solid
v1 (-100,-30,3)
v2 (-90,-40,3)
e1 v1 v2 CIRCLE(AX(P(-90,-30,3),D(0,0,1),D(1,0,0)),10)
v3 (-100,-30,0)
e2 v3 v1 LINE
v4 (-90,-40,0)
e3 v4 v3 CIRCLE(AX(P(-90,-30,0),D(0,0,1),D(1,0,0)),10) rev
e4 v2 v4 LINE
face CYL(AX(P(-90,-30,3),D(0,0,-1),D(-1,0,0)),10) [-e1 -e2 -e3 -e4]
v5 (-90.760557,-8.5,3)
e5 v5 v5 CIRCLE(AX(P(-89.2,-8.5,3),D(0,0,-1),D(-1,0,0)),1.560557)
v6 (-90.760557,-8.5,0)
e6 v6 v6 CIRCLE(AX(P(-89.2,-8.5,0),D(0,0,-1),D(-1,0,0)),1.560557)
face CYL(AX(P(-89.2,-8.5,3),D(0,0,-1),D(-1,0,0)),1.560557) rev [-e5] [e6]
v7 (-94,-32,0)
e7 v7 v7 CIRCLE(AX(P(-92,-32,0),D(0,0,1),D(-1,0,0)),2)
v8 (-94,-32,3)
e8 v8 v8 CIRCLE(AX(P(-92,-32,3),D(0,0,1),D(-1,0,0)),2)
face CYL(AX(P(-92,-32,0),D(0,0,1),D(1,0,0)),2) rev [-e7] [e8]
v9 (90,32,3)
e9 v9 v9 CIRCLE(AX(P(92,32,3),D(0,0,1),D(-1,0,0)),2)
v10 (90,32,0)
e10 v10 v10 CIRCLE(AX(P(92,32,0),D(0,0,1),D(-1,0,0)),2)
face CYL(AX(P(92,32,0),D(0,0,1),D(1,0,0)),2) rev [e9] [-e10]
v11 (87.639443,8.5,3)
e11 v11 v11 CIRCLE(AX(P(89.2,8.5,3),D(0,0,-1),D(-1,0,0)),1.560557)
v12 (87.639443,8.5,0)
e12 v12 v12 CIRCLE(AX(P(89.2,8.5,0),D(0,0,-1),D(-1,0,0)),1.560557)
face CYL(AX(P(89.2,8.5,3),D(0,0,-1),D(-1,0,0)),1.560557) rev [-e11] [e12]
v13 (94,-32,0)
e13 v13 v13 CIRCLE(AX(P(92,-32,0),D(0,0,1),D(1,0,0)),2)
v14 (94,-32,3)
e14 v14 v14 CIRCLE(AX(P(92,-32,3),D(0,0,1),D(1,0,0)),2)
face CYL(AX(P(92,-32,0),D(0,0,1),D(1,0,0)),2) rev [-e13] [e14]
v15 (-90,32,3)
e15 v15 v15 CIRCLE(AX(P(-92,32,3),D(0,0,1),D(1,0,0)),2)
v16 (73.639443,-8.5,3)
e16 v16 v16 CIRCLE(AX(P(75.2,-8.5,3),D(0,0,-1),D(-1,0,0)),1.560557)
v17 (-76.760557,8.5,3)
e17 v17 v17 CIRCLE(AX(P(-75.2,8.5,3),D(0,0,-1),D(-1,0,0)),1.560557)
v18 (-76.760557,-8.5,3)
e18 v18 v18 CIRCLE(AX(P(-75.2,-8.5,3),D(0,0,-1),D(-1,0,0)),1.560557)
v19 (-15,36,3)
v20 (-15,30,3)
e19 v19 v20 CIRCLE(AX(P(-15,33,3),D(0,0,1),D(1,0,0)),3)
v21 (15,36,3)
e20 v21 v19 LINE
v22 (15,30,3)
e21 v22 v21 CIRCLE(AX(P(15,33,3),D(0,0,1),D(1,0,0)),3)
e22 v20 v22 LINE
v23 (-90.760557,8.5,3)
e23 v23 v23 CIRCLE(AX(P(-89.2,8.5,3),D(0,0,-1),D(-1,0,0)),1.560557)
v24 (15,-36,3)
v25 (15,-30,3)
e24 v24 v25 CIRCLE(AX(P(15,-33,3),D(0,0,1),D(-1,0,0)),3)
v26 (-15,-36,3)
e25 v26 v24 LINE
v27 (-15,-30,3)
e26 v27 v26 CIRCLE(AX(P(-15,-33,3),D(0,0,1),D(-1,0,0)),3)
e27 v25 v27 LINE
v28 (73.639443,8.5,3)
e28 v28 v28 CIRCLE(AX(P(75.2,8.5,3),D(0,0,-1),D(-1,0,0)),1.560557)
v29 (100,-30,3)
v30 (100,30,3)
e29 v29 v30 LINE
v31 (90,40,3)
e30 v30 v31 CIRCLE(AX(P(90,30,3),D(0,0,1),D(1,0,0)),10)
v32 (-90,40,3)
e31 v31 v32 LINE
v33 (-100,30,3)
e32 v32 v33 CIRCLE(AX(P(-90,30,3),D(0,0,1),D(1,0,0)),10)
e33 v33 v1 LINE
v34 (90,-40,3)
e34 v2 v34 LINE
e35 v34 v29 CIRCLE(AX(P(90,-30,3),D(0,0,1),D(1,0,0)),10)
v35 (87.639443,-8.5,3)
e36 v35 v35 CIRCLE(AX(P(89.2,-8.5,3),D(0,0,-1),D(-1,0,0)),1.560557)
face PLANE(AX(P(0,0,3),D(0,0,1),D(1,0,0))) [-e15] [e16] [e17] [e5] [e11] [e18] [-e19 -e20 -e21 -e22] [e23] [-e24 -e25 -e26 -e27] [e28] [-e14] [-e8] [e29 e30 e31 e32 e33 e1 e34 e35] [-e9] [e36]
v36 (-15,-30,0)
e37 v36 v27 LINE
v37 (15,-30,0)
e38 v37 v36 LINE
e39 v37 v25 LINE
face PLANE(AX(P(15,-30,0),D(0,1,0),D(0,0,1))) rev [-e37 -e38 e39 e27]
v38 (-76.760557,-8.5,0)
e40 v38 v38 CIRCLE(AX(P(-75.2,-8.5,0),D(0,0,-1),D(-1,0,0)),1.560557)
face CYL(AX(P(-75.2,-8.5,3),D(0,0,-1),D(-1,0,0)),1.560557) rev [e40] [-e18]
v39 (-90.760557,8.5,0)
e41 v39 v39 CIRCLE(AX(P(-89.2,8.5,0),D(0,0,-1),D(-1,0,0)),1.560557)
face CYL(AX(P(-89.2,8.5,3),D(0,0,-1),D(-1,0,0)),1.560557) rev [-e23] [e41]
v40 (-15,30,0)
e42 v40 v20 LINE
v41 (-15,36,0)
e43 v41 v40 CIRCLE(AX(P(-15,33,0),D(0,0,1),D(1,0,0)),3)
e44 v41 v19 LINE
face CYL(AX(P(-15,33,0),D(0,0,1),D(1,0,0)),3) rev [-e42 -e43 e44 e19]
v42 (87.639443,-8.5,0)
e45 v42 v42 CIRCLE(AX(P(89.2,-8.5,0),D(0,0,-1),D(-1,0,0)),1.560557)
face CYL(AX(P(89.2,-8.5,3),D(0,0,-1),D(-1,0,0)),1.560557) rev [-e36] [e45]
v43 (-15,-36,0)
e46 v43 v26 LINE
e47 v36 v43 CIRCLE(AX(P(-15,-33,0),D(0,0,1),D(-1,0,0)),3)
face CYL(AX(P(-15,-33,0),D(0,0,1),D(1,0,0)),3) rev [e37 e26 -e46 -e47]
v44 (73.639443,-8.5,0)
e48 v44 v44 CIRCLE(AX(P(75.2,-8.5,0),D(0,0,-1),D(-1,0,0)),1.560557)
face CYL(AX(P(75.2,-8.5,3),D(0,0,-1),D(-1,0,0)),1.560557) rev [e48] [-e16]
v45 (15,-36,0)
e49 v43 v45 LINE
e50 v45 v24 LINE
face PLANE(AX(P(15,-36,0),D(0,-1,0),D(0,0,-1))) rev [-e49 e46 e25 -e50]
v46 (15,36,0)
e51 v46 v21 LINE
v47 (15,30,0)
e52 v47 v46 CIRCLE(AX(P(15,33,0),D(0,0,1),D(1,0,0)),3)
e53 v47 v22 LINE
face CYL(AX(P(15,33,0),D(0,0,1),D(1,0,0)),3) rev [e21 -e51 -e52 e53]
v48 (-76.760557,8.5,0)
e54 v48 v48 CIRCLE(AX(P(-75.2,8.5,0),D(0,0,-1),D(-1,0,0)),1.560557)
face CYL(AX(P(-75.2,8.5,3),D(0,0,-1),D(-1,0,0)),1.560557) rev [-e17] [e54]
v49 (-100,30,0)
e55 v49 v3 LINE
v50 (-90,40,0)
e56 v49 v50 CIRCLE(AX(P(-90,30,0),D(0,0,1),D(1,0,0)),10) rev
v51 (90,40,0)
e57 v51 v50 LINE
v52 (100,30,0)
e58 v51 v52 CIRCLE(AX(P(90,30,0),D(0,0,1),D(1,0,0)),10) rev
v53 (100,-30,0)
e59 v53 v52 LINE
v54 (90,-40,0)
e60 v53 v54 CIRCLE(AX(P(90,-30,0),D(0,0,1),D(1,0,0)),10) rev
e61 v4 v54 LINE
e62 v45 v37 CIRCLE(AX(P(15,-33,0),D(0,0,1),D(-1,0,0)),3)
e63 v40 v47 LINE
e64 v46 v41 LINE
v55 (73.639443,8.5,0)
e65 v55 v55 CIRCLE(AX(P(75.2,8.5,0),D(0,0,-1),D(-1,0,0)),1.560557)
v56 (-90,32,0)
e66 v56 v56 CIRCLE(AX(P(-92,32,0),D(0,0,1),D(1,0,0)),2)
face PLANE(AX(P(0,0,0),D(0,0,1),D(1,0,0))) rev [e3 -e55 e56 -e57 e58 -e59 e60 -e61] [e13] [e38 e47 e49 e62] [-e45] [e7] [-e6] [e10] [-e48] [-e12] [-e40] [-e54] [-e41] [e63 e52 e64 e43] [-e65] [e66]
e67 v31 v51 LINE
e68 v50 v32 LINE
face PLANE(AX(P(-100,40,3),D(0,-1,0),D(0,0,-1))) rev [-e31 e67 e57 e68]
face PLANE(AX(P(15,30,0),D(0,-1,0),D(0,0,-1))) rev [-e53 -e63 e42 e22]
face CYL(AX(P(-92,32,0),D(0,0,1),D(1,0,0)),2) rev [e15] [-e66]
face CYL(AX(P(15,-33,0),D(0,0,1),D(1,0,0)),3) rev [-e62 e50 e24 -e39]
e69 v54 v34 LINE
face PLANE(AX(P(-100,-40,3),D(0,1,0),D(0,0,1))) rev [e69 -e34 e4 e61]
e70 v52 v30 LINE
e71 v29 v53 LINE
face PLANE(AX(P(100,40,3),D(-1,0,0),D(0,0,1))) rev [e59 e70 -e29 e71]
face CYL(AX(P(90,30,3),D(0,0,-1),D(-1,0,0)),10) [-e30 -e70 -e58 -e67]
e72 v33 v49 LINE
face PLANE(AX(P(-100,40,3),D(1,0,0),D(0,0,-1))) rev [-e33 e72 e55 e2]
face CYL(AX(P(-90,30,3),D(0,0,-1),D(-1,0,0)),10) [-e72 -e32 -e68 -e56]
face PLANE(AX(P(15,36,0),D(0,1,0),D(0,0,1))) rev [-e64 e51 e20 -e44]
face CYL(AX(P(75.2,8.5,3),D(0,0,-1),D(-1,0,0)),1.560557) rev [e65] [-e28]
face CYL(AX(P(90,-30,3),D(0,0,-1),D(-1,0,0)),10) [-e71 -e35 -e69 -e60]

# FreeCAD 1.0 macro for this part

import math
import FreeCAD as App
import Part
import Sketcher
Q = App.Units.Quantity


def edges_at(feature, points):
    """Names of the edges that pass closest to the given points."""
    edges = feature.Shape.Edges
    near = lambda p: min(range(len(edges)), key=lambda i: edges[i].distToShape(Part.Vertex(*p))[0])
    return sorted({f"Edge{near(p) + 1}" for p in points})

doc = App.newDocument("Part")
body = doc.addObject("PartDesign::Body", "Body")

# Sketch on XY plane
sketch1 = body.newObject("Sketcher::SketchObject", "Sketch")
sketch1.AttachmentSupport = (doc.getObject("XY_Plane"), [""])
sketch1.MapMode = "FlatFace"
sketch1.addGeometry(Part.LineSegment(App.Vector(-100, 40, 0), App.Vector(-100, -40, 0)), False)
sketch1.addGeometry(Part.LineSegment(App.Vector(-100, -40, 0), App.Vector(100, -40, 0)), False)
sketch1.addGeometry(Part.LineSegment(App.Vector(100, -40, 0), App.Vector(100, 40, 0)), False)
sketch1.addGeometry(Part.LineSegment(App.Vector(100, 40, 0), App.Vector(-100, 40, 0)), False)
sketch1.addConstraint(Sketcher.Constraint("Coincident", 0, 2, 1, 1))
sketch1.addConstraint(Sketcher.Constraint("Coincident", 1, 2, 2, 1))
sketch1.addConstraint(Sketcher.Constraint("Coincident", 2, 2, 3, 1))
sketch1.addConstraint(Sketcher.Constraint("Coincident", 3, 2, 0, 1))
sketch1.addConstraint(Sketcher.Constraint("Vertical", 0))
sketch1.addConstraint(Sketcher.Constraint("Horizontal", 1))
sketch1.addConstraint(Sketcher.Constraint("Vertical", 2))
sketch1.addConstraint(Sketcher.Constraint("Horizontal", 3))
sketch1.addConstraint(Sketcher.Constraint("Symmetric", 0, 2, 2, 2, -1, 1))
sketch1.addConstraint(Sketcher.Constraint("DistanceX", 1, 1, 1, 2, Q("200 mm")))
sketch1.addConstraint(Sketcher.Constraint("DistanceY", 0, 2, 0, 1, Q("80 mm")))
pad1 = body.newObject("PartDesign::Pad", "Pad")
pad1.Profile = sketch1
pad1.Length = 3

# Sketch on XY plane
sketch2 = body.newObject("Sketcher::SketchObject", "Sketch001")
sketch2.AttachmentSupport = (doc.getObject("XY_Plane"), [""])
sketch2.MapMode = "FlatFace"
sketch2.AttachmentOffset = App.Placement(App.Vector(0, 0, 3), App.Rotation())
sketch2.addGeometry(Part.Circle(App.Vector(-92, 32, 0), App.Vector(0, 0, 1), 2), False)
sketch2.addGeometry(Part.Circle(App.Vector(-92, -32, 0), App.Vector(0, 0, 1), 2), False)
sketch2.addGeometry(Part.Circle(App.Vector(92, -32, 0), App.Vector(0, 0, 1), 2), False)
sketch2.addGeometry(Part.Circle(App.Vector(92, 32, 0), App.Vector(0, 0, 1), 2), False)
sketch2.addConstraint(Sketcher.Constraint("Equal", 0, 1))
sketch2.addConstraint(Sketcher.Constraint("Equal", 1, 2))
sketch2.addConstraint(Sketcher.Constraint("Equal", 2, 3))
sketch2.addConstraint(Sketcher.Constraint("Symmetric", 0, 3, 2, 3, -1, 1))
sketch2.addConstraint(Sketcher.Constraint("Symmetric", 1, 3, 3, 3, -1, 1))
sketch2.addConstraint(Sketcher.Constraint("Symmetric", 1, 3, 2, 3, -2))
sketch2.addConstraint(Sketcher.Constraint("Diameter", 0, Q("4 mm")))
sketch2.addConstraint(Sketcher.Constraint("DistanceX", 0, 3, -1, 1, Q("92 mm")))
sketch2.addConstraint(Sketcher.Constraint("DistanceY", -1, 1, 0, 3, Q("32 mm")))
pocket1 = body.newObject("PartDesign::Pocket", "Pocket")
pocket1.Profile = sketch2
pocket1.Type = "ThroughAll"
doc.recompute()

fillet = body.newObject("PartDesign::Fillet", "Fillet")
fillet.Base = (pocket1, edges_at(pocket1, [
    (100, -40, 1.5),
    (-100, -40, 1.5),
    (-100, 40, 1.5),
    (100, 40, 1.5),
]))
fillet.Radius = 10

# Sketch on XY plane
sketch3 = body.newObject("Sketcher::SketchObject", "Sketch002")
sketch3.AttachmentSupport = (doc.getObject("XY_Plane"), [""])
sketch3.MapMode = "FlatFace"
sketch3.addGeometry(Part.Circle(App.Vector(-89.2, -8.5, 0), App.Vector(0, 0, 1), 1.6), False)
sketch3.addGeometry(Part.Circle(App.Vector(-75.2, -8.5, 0), App.Vector(0, 0, 1), 1.6), False)
sketch3.addGeometry(Part.Circle(App.Vector(-75.2, 8.5, 0), App.Vector(0, 0, 1), 1.6), False)
sketch3.addGeometry(Part.Circle(App.Vector(-89.2, 8.5, 0), App.Vector(0, 0, 1), 1.6), False)
sketch3.addGeometry(Part.Circle(App.Vector(89.2, -8.5, 0), App.Vector(0, 0, 1), 1.6), False)
sketch3.addGeometry(Part.Circle(App.Vector(75.2, -8.5, 0), App.Vector(0, 0, 1), 1.6), False)
sketch3.addGeometry(Part.Circle(App.Vector(89.2, 8.5, 0), App.Vector(0, 0, 1), 1.6), False)
sketch3.addGeometry(Part.Circle(App.Vector(75.2, 8.5, 0), App.Vector(0, 0, 1), 1.6), False)
sketch3.addConstraint(Sketcher.Constraint("Equal", 0, 1))
sketch3.addConstraint(Sketcher.Constraint("Equal", 1, 2))
sketch3.addConstraint(Sketcher.Constraint("Equal", 2, 3))
sketch3.addConstraint(Sketcher.Constraint("Equal", 3, 4))
sketch3.addConstraint(Sketcher.Constraint("Equal", 4, 5))
sketch3.addConstraint(Sketcher.Constraint("Equal", 5, 6))
sketch3.addConstraint(Sketcher.Constraint("Equal", 6, 7))
sketch3.addConstraint(Sketcher.Constraint("Symmetric", 3, 3, 4, 3, -1, 1))
sketch3.addConstraint(Sketcher.Constraint("Symmetric", 2, 3, 5, 3, -1, 1))
sketch3.addConstraint(Sketcher.Constraint("Symmetric", 0, 3, 6, 3, -1, 1))
sketch3.addConstraint(Sketcher.Constraint("Symmetric", 1, 3, 7, 3, -1, 1))
sketch3.addConstraint(Sketcher.Constraint("Symmetric", 0, 3, 4, 3, -2))
sketch3.addConstraint(Sketcher.Constraint("Symmetric", 1, 3, 5, 3, -2))
sketch3.addConstraint(Sketcher.Constraint("Horizontal", 0, 3, 1, 3))
sketch3.addConstraint(Sketcher.Constraint("DistanceX", 0, 3, 1, 3, Q("14 mm")))
sketch3.addConstraint(Sketcher.Constraint("DistanceY", 1, 3, 2, 3, Q("17 mm")))
sketch3.addConstraint(Sketcher.Constraint("DistanceX", 0, 3, -1, 1, Q("89.2 mm")))
sketch3.addConstraint(Sketcher.Constraint("Diameter", 0, Q("3.121114 mm")))
pocket2 = body.newObject("PartDesign::Pocket", "Pocket001")
pocket2.Profile = sketch3
pocket2.Type = "ThroughAll"
pocket2.Reversed = True

# Sketch on XY plane
sketch4 = body.newObject("Sketcher::SketchObject", "Sketch003")
sketch4.AttachmentSupport = (doc.getObject("XY_Plane"), [""])
sketch4.MapMode = "FlatFace"
sketch4.AttachmentOffset = App.Placement(App.Vector(0, 0, 3), App.Rotation())
sketch4.addGeometry(Part.LineSegment(App.Vector(-15, 30, 0), App.Vector(15, 30, 0)), False)
sketch4.addGeometry(Part.ArcOfCircle(Part.Circle(App.Vector(15, 33, 0), App.Vector(0, 0, 1), 3), math.radians(-90), math.radians(90)), False)
sketch4.addGeometry(Part.LineSegment(App.Vector(15, 36, 0), App.Vector(-15, 36, 0)), False)
sketch4.addGeometry(Part.ArcOfCircle(Part.Circle(App.Vector(-15, 33, 0), App.Vector(0, 0, 1), 3), math.radians(90), math.radians(270)), False)
sketch4.addGeometry(Part.LineSegment(App.Vector(15, -30, 0), App.Vector(-15, -30, 0)), False)
sketch4.addGeometry(Part.ArcOfCircle(Part.Circle(App.Vector(-15, -33, 0), App.Vector(0, 0, 1), 3), math.radians(90), math.radians(270)), False)
sketch4.addGeometry(Part.LineSegment(App.Vector(-15, -36, 0), App.Vector(15, -36, 0)), False)
sketch4.addGeometry(Part.ArcOfCircle(Part.Circle(App.Vector(15, -33, 0), App.Vector(0, 0, 1), 3), math.radians(-90), math.radians(90)), False)
sketch4.addConstraint(Sketcher.Constraint("Tangent", 0, 2, 1, 1))
sketch4.addConstraint(Sketcher.Constraint("Tangent", 1, 2, 2, 1))
sketch4.addConstraint(Sketcher.Constraint("Tangent", 2, 2, 3, 1))
sketch4.addConstraint(Sketcher.Constraint("Tangent", 3, 2, 0, 1))
sketch4.addConstraint(Sketcher.Constraint("Tangent", 4, 2, 5, 1))
sketch4.addConstraint(Sketcher.Constraint("Tangent", 5, 2, 6, 1))
sketch4.addConstraint(Sketcher.Constraint("Tangent", 6, 2, 7, 1))
sketch4.addConstraint(Sketcher.Constraint("Tangent", 7, 2, 4, 1))
sketch4.addConstraint(Sketcher.Constraint("Horizontal", 0))
sketch4.addConstraint(Sketcher.Constraint("Horizontal", 2))
sketch4.addConstraint(Sketcher.Constraint("Horizontal", 4))
sketch4.addConstraint(Sketcher.Constraint("Horizontal", 6))
sketch4.addConstraint(Sketcher.Constraint("Equal", 3, 5))
sketch4.addConstraint(Sketcher.Constraint("Symmetric", 1, 3, 5, 3, -1, 1))
sketch4.addConstraint(Sketcher.Constraint("Vertical", 3, 3, 5, 3))
sketch4.addConstraint(Sketcher.Constraint("Vertical", 1, 3, 7, 3))
sketch4.addConstraint(Sketcher.Constraint("Radius", 1, Q("3 mm")))
sketch4.addConstraint(Sketcher.Constraint("DistanceX", 0, 1, 0, 2, Q("30 mm")))
sketch4.addConstraint(Sketcher.Constraint("DistanceY", -1, 1, 1, 3, Q("33 mm")))
pocket3 = body.newObject("PartDesign::Pocket", "Pocket002")
pocket3.Profile = sketch4
pocket3.Type = "ThroughAll"

doc.recompute()
